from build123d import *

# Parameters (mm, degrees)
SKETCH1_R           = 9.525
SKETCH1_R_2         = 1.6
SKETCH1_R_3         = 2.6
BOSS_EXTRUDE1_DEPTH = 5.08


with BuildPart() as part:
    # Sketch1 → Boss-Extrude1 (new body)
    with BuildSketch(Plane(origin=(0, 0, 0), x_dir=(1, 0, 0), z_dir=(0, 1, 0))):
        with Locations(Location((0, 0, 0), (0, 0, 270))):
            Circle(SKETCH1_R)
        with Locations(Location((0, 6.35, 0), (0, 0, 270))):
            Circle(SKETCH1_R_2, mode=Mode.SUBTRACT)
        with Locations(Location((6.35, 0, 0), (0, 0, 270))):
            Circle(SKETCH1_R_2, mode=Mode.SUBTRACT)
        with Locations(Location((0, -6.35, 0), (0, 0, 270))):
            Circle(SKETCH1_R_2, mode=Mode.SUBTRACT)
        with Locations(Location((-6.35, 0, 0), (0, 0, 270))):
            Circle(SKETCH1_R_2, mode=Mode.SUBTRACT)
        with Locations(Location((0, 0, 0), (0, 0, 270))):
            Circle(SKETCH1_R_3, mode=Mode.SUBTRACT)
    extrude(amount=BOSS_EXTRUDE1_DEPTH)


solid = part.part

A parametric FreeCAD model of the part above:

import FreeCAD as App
import Part
import Sketcher

V = App.Vector

doc = App.newDocument("Part")
params = doc.addObject("Spreadsheet::Sheet", "Params")
for row, (alias, value) in enumerate([
    ("sketch1_diameter", "3.2 mm"),
    ("sketch1_diameter2", "5.2 mm"),
    ("sketch1_diameter3", "19.05 mm"),
    ("pad1_length", "5.08 mm"),
], start=1):
    params.set(f"A{row}", alias)
    params.set(f"B{row}", "=" + value)
    params.setAlias(f"B{row}", alias)

body = doc.addObject("PartDesign::Body", "Body")

sketch1 = body.newObject("Sketcher::SketchObject", "Sketch")
sketch1.AttachmentSupport = (doc.getObject("XZ_Plane"), [""])
sketch1.MapMode = "FlatFace"
sketch1.addGeometry([
    Part.Circle(V(0, 0, 0), V(0, 0, 1), 9.5),
    Part.Circle(V(0, -6.3, 0), V(0, 0, 1), 1.6),
    Part.Circle(V(0, 0, 0), V(0, 0, 1), 2.6),
    Part.Circle(V(-6.3, 0, 0), V(0, 0, 1), 1.6),
    Part.Circle(V(6.3, 0, 0), V(0, 0, 1), 1.6),
    Part.Circle(V(0, 6.3, 0), V(0, 0, 1), 1.6),
], False)
sketch1.addConstraint([
    Sketcher.Constraint("Coincident", 0, 3, -1, 1),
    Sketcher.Constraint("Coincident", 2, 3, -1, 1),
    Sketcher.Constraint("Equal", 1, 3),
    Sketcher.Constraint("Equal", 3, 4),
    Sketcher.Constraint("Equal", 4, 5),
    Sketcher.Constraint("Symmetric", 3, 3, 4, 3, -1, 1),
    Sketcher.Constraint("Symmetric", 1, 3, 5, 3, -1, 1),
    Sketcher.Constraint("PointOnObject", 1, 3, -2),
    Sketcher.Constraint("PointOnObject", 3, 3, -1),
    Sketcher.Constraint("Diameter", 1, 3.2),
    Sketcher.Constraint("Diameter", 2, 5.2),
    Sketcher.Constraint("Diameter", 0, 19.05),
    Sketcher.Constraint("DistanceX", 3, 3, 4, 3, 12.7),
    Sketcher.Constraint("DistanceY", 1, 3, 5, 3, 12.7),
])
sketch1.setExpression("Constraints[9]", "Params.sketch1_diameter")
sketch1.setExpression("Constraints[10]", "Params.sketch1_diameter2")
sketch1.setExpression("Constraints[11]", "Params.sketch1_diameter3")
pad1 = body.newObject("PartDesign::Pad", "Pad")
pad1.Profile = sketch1
pad1.setExpression("Length", "Params.pad1_length")
pad1.Reversed = True

doc.recompute()
